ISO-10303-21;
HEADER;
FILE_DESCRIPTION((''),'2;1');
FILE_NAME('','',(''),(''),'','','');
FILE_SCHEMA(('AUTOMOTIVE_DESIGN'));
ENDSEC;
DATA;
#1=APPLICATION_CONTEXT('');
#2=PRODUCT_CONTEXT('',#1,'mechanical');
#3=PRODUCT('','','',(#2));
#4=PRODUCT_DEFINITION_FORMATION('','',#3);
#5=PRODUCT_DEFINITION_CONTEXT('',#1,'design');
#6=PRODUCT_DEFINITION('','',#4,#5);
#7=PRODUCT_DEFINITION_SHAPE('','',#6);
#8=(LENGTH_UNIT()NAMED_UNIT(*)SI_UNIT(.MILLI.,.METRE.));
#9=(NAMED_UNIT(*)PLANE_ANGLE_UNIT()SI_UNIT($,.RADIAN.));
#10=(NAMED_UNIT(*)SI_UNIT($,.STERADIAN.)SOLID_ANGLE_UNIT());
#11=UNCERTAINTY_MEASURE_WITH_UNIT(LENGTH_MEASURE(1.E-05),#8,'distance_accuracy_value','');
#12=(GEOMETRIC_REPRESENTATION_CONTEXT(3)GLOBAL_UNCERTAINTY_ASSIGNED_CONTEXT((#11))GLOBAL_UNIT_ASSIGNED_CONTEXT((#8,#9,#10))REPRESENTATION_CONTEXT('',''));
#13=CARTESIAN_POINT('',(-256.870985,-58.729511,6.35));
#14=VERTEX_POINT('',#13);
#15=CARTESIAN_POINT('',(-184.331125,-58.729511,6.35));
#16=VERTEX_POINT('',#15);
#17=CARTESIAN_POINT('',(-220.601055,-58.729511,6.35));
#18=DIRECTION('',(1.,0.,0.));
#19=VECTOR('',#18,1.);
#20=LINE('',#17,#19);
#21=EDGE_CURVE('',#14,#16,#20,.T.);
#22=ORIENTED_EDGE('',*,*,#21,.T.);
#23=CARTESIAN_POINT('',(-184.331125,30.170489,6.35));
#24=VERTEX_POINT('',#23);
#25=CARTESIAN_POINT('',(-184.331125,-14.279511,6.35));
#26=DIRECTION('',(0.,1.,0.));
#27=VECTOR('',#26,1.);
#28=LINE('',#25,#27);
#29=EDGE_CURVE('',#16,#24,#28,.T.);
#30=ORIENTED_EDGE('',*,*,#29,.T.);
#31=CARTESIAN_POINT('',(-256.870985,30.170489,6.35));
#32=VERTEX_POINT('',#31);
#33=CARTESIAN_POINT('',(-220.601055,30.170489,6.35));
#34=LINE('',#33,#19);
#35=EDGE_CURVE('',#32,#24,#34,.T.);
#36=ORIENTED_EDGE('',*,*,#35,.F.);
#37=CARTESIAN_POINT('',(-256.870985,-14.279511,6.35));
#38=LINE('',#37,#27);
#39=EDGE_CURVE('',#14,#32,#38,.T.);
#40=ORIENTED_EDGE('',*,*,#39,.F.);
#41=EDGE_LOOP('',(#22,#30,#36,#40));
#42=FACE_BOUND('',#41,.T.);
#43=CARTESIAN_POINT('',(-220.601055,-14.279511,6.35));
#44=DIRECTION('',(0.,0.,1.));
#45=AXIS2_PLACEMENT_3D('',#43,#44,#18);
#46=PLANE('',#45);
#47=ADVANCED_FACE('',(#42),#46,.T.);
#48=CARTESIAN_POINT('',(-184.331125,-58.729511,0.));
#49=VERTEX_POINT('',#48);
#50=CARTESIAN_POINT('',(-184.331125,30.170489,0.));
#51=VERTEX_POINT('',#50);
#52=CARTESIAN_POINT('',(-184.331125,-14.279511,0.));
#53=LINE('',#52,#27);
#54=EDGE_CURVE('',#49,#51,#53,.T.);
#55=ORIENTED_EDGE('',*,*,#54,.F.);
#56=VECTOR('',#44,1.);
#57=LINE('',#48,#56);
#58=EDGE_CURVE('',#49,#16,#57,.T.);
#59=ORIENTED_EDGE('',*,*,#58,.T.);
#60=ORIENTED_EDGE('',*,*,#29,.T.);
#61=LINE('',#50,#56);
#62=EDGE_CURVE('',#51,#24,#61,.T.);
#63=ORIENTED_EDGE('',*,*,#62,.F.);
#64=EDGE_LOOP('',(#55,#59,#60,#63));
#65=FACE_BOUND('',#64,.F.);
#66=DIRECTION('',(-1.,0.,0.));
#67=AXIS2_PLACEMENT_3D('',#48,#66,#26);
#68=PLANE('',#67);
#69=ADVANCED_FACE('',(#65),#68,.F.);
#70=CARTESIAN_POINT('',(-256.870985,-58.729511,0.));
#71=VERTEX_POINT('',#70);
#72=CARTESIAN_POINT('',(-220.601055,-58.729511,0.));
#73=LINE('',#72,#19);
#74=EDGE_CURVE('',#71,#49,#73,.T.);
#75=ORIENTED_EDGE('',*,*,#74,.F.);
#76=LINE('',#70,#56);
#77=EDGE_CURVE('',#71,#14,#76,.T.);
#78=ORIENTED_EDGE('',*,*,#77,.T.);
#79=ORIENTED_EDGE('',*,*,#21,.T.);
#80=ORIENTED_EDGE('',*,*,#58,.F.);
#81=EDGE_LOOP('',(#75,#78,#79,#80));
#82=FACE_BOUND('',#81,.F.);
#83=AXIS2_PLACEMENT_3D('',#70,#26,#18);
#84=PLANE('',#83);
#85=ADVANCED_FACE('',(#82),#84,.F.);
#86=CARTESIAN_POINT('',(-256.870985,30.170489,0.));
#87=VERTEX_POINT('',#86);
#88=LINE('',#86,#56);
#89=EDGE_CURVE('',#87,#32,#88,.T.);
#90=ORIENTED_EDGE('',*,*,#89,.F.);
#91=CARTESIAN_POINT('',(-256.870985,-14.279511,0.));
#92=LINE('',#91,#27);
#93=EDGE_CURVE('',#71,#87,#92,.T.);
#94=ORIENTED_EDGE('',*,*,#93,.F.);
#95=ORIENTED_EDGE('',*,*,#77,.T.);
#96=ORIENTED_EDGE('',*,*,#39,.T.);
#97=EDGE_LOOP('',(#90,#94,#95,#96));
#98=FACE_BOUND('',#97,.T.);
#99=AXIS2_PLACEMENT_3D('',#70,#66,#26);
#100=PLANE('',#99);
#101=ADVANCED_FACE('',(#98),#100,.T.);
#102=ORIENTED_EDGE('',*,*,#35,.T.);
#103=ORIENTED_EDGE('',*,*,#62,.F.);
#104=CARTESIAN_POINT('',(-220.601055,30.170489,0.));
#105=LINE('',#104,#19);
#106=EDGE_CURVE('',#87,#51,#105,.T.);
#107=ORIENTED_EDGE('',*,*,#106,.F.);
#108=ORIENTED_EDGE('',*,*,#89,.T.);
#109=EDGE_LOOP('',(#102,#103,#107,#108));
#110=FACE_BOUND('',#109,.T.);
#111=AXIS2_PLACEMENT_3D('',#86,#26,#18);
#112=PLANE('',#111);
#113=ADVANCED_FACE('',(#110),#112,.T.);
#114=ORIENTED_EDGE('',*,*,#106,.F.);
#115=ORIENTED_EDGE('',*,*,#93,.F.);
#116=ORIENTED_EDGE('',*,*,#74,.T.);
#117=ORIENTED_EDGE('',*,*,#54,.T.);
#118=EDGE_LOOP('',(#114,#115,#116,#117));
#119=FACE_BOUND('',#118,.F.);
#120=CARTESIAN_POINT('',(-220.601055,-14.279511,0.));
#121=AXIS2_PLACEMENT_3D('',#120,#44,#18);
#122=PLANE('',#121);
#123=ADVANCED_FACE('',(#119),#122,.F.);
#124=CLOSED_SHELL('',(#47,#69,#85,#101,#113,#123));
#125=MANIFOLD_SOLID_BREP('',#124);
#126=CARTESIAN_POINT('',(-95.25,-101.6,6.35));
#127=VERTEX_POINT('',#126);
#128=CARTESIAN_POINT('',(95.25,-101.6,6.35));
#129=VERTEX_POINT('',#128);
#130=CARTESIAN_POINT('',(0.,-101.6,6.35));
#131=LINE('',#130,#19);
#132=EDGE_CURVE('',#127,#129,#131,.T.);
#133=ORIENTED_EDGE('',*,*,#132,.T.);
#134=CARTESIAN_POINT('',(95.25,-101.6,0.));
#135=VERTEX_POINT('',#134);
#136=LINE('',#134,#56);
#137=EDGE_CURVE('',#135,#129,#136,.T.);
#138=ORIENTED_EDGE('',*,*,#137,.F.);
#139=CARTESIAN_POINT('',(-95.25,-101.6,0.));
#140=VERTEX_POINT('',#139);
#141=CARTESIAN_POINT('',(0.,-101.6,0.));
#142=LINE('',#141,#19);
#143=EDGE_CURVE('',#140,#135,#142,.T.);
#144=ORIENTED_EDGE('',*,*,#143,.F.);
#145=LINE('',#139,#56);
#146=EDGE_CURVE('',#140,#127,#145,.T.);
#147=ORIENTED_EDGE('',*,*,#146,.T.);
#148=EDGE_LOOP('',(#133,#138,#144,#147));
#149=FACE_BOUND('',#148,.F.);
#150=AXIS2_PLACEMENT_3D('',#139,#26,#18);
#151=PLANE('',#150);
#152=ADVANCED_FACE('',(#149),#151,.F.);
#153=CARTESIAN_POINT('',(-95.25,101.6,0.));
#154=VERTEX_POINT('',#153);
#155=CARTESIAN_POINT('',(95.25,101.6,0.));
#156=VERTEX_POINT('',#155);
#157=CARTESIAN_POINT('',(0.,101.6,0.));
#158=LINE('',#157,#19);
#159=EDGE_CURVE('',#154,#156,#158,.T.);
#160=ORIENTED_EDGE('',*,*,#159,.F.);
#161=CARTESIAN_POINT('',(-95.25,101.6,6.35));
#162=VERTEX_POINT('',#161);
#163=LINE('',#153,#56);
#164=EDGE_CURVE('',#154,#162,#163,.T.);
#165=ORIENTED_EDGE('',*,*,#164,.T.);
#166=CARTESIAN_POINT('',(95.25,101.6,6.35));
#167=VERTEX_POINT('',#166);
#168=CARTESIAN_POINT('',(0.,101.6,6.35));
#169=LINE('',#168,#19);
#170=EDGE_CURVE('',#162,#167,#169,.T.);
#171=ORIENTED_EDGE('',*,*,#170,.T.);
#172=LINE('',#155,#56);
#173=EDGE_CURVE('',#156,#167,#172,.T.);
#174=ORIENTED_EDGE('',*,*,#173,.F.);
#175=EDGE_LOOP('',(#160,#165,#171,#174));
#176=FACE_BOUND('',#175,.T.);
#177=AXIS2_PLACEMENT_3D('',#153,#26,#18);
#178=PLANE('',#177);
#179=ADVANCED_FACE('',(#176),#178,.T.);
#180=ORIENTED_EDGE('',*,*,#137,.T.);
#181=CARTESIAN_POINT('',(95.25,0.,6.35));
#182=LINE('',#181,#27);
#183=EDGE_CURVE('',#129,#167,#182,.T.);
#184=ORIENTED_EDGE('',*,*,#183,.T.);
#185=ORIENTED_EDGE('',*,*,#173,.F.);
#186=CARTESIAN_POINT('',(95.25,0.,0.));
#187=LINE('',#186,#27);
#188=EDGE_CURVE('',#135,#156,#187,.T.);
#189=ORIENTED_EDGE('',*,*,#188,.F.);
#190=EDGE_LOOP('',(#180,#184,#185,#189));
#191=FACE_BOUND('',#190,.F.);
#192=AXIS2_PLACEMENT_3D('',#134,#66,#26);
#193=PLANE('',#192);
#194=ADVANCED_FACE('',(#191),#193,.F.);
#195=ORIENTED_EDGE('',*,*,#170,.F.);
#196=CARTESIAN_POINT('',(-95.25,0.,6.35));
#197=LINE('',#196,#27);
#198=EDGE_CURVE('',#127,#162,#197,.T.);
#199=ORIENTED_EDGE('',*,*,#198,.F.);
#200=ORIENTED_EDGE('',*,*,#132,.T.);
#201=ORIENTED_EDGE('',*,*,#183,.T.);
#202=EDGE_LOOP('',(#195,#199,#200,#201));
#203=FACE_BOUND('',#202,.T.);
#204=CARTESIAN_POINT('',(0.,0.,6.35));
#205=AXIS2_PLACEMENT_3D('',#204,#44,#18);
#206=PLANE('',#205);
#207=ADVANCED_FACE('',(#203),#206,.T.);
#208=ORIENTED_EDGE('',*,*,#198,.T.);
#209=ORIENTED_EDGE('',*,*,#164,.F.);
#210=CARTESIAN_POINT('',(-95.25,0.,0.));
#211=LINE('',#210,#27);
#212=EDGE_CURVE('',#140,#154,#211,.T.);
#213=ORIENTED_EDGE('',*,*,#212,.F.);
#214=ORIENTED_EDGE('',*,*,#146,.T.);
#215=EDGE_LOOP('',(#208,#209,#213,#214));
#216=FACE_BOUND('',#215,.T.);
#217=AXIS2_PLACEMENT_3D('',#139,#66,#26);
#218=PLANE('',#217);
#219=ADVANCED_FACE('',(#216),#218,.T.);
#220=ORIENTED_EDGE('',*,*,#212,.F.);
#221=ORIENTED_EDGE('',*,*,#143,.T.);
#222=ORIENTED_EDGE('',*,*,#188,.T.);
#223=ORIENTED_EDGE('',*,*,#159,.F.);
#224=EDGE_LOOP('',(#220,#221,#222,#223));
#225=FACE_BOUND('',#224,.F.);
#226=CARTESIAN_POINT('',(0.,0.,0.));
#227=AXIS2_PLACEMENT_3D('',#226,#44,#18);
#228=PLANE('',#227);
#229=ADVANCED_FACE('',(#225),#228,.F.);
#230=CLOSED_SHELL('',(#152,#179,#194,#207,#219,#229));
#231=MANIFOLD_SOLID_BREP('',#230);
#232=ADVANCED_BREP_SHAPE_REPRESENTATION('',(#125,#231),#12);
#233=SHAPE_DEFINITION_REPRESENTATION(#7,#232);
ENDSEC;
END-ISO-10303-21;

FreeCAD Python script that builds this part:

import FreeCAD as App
import Part
import Sketcher
Q = App.Units.Quantity

doc = App.newDocument("Part")
body = doc.addObject("PartDesign::Body", "Body")
body.AllowCompound = True

# Sketch on XY plane
sketch1 = body.newObject("Sketcher::SketchObject", "Sketch")
sketch1.AttachmentSupport = (doc.getObject("XY_Plane"), [""])
sketch1.MapMode = "FlatFace"
sketch1.addGeometry([
    Part.LineSegment(App.Vector(-95, 102, 0), App.Vector(-95, -102, 0)),  # 0
    Part.LineSegment(App.Vector(-95, -102, 0), App.Vector(95, -102, 0)),  # 1
    Part.LineSegment(App.Vector(95, -102, 0), App.Vector(95, 102, 0)),  # 2
    Part.LineSegment(App.Vector(95, 102, 0), App.Vector(-95, 102, 0)),  # 3
    Part.LineSegment(App.Vector(-257, 30, 0), App.Vector(-257, -59, 0)),  # 4
    Part.LineSegment(App.Vector(-257, -59, 0), App.Vector(-184, -59, 0)),  # 5
    Part.LineSegment(App.Vector(-184, -59, 0), App.Vector(-184, 30, 0)),  # 6
    Part.LineSegment(App.Vector(-184, 30, 0), App.Vector(-257, 30, 0)),  # 7
], False)
sketch1.addConstraint([
    Sketcher.Constraint("Coincident", 0, 2, 1, 1),
    Sketcher.Constraint("Coincident", 1, 2, 2, 1),
    Sketcher.Constraint("Coincident", 2, 2, 3, 1),
    Sketcher.Constraint("Coincident", 3, 2, 0, 1),
    Sketcher.Constraint("Coincident", 4, 2, 5, 1),
    Sketcher.Constraint("Coincident", 5, 2, 6, 1),
    Sketcher.Constraint("Coincident", 6, 2, 7, 1),
    Sketcher.Constraint("Coincident", 7, 2, 4, 1),
    Sketcher.Constraint("Vertical", 0),
    Sketcher.Constraint("Horizontal", 1),
    Sketcher.Constraint("Vertical", 2),
    Sketcher.Constraint("Horizontal", 3),
    Sketcher.Constraint("Vertical", 4),
    Sketcher.Constraint("Horizontal", 5),
    Sketcher.Constraint("Vertical", 6),
    Sketcher.Constraint("Horizontal", 7),
    Sketcher.Constraint("Symmetric", 0, 2, 2, 2, -1, 1),
    Sketcher.Constraint("DistanceY", 0, 2, 0, 1, Q("8 in")),
    Sketcher.Constraint("DistanceX", 1, 1, 1, 2, Q("7.5 in")),
    Sketcher.Constraint("DistanceY", 4, 2, 4, 1, Q("3.5 in")),
    Sketcher.Constraint("DistanceX", 5, 1, 5, 2, Q("2.8559 in")),
    Sketcher.Constraint("DistanceY", 4, 2, -1, 1, Q("58.729511 mm")),
    Sketcher.Constraint("DistanceX", 4, 2, -1, 1, Q("256.870985 mm")),
])
pad1 = body.newObject("PartDesign::Pad", "Pad")
pad1.Profile = sketch1
pad1.Length = Q("0.25 in")

doc.recompute()
